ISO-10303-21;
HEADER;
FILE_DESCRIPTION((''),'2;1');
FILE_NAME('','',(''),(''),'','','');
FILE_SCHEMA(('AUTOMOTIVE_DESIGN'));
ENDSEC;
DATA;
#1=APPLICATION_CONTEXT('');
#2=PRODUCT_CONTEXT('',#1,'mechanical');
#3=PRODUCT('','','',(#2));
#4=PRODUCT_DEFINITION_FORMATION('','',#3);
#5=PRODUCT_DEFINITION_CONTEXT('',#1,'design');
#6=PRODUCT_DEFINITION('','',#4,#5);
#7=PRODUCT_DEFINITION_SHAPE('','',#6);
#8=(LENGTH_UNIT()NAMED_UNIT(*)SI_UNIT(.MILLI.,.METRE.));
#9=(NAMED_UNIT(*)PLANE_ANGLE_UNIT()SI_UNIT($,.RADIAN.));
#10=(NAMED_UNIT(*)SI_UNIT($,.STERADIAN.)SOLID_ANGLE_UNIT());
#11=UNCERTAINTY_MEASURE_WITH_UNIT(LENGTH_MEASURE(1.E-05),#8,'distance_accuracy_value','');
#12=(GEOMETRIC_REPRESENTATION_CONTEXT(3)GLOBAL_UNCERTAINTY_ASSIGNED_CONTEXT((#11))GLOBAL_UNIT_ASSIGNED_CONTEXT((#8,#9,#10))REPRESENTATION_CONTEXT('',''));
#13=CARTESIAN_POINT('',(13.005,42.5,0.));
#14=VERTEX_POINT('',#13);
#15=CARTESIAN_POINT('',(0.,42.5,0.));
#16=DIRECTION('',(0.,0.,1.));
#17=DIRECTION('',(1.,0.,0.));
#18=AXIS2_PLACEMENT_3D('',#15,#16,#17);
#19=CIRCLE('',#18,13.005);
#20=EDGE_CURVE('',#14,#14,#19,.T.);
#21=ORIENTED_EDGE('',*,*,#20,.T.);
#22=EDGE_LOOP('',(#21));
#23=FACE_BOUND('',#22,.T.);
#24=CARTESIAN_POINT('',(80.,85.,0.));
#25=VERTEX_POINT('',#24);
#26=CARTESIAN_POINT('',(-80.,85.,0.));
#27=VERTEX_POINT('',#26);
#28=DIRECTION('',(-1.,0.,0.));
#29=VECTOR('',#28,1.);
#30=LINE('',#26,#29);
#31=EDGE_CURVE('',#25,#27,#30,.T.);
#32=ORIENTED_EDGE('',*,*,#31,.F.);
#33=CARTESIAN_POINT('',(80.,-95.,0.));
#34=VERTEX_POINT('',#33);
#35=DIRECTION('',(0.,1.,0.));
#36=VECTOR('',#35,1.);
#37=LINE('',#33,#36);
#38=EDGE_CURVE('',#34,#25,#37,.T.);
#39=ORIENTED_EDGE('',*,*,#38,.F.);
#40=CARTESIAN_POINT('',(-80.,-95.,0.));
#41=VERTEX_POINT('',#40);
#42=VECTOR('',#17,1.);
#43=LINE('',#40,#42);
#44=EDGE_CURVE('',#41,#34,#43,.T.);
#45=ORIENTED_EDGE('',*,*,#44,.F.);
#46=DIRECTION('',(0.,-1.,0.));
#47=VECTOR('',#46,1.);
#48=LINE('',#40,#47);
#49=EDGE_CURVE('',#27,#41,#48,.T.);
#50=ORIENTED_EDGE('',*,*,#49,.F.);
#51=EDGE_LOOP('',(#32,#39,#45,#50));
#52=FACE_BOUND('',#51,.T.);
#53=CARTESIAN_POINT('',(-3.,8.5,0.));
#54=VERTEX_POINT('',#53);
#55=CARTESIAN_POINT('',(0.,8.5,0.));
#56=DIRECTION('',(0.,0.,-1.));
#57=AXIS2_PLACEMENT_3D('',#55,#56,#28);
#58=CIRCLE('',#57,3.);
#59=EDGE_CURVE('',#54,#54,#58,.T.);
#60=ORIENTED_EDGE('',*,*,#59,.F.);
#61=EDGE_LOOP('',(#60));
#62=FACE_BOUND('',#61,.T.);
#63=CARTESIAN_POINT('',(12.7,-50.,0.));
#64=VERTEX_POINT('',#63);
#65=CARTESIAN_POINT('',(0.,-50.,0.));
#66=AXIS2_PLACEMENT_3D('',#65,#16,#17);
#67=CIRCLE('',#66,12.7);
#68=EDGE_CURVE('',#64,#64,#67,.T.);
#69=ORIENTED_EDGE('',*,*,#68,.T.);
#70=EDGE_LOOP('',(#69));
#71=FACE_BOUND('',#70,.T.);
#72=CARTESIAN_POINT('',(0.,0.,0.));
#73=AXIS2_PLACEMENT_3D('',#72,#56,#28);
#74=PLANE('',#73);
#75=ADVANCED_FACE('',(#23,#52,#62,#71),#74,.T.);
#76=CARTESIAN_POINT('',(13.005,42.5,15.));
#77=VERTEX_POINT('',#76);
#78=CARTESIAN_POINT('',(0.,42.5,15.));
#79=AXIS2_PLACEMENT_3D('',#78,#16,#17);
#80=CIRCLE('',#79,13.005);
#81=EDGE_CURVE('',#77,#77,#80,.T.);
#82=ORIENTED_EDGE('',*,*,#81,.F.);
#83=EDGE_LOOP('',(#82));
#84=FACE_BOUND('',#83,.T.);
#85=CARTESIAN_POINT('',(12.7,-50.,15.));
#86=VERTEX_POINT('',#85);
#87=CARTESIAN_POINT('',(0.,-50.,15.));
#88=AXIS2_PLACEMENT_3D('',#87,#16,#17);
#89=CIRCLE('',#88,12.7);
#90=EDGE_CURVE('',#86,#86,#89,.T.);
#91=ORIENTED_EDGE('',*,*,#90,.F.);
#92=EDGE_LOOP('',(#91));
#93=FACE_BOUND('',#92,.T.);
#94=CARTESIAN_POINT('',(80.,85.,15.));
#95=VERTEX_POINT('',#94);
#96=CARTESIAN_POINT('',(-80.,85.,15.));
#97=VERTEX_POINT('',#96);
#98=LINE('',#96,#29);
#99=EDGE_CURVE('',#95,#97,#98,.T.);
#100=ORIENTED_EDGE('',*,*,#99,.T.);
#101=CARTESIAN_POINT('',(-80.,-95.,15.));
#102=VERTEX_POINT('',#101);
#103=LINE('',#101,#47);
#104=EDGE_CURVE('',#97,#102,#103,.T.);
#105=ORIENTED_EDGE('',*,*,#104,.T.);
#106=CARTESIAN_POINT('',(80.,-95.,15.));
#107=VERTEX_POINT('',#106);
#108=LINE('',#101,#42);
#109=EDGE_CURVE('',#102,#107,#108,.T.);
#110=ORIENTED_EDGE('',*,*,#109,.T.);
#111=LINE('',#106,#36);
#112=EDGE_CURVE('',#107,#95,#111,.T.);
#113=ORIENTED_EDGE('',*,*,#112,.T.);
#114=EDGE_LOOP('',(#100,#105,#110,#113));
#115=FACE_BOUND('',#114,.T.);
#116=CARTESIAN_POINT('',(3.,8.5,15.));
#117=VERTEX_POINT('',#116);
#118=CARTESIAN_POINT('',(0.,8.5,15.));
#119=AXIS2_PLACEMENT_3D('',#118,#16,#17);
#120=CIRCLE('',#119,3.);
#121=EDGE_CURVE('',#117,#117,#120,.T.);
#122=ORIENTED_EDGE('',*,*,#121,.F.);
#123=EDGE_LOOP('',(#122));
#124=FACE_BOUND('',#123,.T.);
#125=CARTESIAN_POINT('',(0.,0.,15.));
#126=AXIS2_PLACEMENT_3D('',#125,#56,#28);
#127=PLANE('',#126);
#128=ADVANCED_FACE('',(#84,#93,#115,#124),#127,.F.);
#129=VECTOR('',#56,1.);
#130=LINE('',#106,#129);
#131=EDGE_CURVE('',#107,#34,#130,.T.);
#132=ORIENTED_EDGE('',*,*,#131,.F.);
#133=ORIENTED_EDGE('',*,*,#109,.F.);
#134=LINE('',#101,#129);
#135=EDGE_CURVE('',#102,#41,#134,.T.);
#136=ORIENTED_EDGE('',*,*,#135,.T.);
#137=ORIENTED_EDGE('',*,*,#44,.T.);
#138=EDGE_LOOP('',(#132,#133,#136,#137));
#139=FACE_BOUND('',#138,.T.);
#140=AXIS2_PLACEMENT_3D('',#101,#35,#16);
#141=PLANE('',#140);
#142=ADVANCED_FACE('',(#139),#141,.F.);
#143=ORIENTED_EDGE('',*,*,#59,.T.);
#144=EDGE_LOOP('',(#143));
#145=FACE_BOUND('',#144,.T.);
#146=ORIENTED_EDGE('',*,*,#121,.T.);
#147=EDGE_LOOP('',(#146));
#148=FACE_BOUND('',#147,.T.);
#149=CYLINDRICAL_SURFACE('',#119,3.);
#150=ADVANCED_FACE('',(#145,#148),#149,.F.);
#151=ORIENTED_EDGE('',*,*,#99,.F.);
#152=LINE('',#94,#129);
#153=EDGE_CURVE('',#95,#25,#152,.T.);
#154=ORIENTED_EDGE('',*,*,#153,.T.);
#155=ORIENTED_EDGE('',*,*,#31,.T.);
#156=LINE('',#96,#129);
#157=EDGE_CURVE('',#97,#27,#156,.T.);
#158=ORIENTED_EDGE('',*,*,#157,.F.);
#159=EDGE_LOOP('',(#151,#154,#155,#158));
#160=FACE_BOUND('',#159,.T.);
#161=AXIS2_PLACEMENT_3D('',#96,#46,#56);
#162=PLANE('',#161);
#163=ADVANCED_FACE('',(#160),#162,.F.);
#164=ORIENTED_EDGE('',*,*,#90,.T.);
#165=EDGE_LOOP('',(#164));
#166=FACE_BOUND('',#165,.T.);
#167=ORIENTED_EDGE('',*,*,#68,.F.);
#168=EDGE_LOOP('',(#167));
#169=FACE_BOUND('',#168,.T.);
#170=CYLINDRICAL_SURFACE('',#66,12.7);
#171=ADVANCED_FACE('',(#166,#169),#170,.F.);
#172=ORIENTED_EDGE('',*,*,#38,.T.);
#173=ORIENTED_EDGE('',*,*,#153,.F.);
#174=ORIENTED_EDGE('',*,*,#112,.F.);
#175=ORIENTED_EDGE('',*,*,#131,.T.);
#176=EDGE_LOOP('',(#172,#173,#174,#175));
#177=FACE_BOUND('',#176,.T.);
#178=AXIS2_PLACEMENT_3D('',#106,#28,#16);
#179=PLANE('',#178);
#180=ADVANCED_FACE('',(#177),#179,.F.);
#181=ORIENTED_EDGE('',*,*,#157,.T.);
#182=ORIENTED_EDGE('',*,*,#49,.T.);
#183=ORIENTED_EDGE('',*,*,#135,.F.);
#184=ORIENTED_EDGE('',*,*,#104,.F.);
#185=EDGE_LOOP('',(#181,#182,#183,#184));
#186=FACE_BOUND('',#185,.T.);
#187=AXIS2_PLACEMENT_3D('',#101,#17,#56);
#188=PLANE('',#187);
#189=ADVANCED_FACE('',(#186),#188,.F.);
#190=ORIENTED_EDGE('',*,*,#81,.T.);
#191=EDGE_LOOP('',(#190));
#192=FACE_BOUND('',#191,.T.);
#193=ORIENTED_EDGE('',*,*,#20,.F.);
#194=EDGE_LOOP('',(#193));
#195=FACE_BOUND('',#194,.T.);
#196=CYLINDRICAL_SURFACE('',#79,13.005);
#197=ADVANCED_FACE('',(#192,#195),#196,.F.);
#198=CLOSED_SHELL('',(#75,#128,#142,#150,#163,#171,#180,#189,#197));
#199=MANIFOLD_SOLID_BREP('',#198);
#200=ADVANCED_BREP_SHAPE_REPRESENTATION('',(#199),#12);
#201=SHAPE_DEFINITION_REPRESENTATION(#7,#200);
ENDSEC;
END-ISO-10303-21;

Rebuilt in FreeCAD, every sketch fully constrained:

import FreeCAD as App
import Part
import Sketcher

V = App.Vector
Q = App.Units.Quantity


def add_polygon(sketch, points):
    """Adds a closed chain of lines whose ends are joined by coincident constraints."""
    first, n = sketch.GeometryCount, len(points)
    for a, b in zip(points, points[1:] + points[:1]):
        sketch.addGeometry(Part.LineSegment(App.Vector(*a, 0), App.Vector(*b, 0)), False)
    for i in range(n):
        sketch.addConstraint(Sketcher.Constraint("Coincident", first + i, 2, first + (i + 1) % n, 1))

doc = App.newDocument("Part")
body = doc.addObject("PartDesign::Body", "Body")

sketch1 = doc.addObject("Sketcher::SketchObject", "Sketch")
body.addObject(sketch1)
sketch1.AttachmentSupport = (doc.XY_Plane, [""])
sketch1.MapMode = "FlatFace"
add_polygon(sketch1, [(-80, 85), (-80, -95), (80, -95), (80, 85)])
sketch1.addConstraint(Sketcher.Constraint("Vertical", 0))
sketch1.addConstraint(Sketcher.Constraint("Horizontal", 1))
sketch1.addConstraint(Sketcher.Constraint("Vertical", 2))
sketch1.addConstraint(Sketcher.Constraint("Horizontal", 3))
sketch1.addConstraint(Sketcher.Constraint("DistanceX", 1, 1, 1, 2, Q("160 mm")))
sketch1.addConstraint(Sketcher.Constraint("DistanceY", 0, 2, 0, 1, Q("180 mm")))
sketch1.addConstraint(Sketcher.Constraint("DistanceX", 0, 2, -1, 1, Q("80 mm")))
sketch1.addConstraint(Sketcher.Constraint("DistanceY", 0, 2, -1, 1, Q("95 mm")))
pad1 = doc.addObject("PartDesign::Pad", "Pad")
body.addObject(pad1)
pad1.Profile = sketch1
pad1.Length = 15

sketch2 = doc.addObject("Sketcher::SketchObject", "Sketch001")
body.addObject(sketch2)
sketch2.AttachmentSupport = (doc.XY_Plane, [""])
sketch2.MapMode = "FlatFace"
sketch2.AttachmentOffset = App.Placement(V(0, 0, 15), App.Rotation())
sketch2.addGeometry(Part.Circle(V(0, 42, 0), V(0, 0, 1), 13), False)
sketch2.addConstraint(Sketcher.Constraint("PointOnObject", 0, 3, -2))
sketch2.addConstraint(Sketcher.Constraint("Diameter", 0, Q("26.01 mm")))
sketch2.addConstraint(Sketcher.Constraint("DistanceY", -1, 1, 0, 3, Q("42.5 mm")))
doc.recompute()
hole = doc.addObject("PartDesign::Hole", "Hole")
body.addObject(hole)
hole.Profile = sketch2
hole.ThreadType = "None"
hole.Diameter = 26.01
hole.DepthType = "ThroughAll"

sketch3 = doc.addObject("Sketcher::SketchObject", "Sketch002")
body.addObject(sketch3)
sketch3.AttachmentSupport = (doc.XY_Plane, [""])
sketch3.MapMode = "FlatFace"
sketch3.AttachmentOffset = App.Placement(V(0, 0, 15), App.Rotation())
sketch3.addGeometry(Part.Circle(V(0, 8.5, 0), V(0, 0, 1), 3), False)
sketch3.addConstraint(Sketcher.Constraint("PointOnObject", 0, 3, -2))
sketch3.addConstraint(Sketcher.Constraint("Diameter", 0, Q("6 mm")))
sketch3.addConstraint(Sketcher.Constraint("DistanceY", -1, 1, 0, 3, Q("8.5 mm")))
doc.recompute()
hole2 = doc.addObject("PartDesign::Hole", "Hole001")
body.addObject(hole2)
hole2.Profile = sketch3
hole2.ThreadType = "None"
hole2.Diameter = 6
hole2.DepthType = "Dimension"
hole2.Depth = 40
hole2.DrillPoint = "Angled"
hole2.DrillPointAngle = 118

sketch4 = doc.addObject("Sketcher::SketchObject", "Sketch003")
body.addObject(sketch4)
sketch4.AttachmentSupport = (doc.XY_Plane, [""])
sketch4.MapMode = "FlatFace"
sketch4.AttachmentOffset = App.Placement(V(0, 0, 15), App.Rotation())
sketch4.addGeometry(Part.Circle(V(0, -50, 0), V(0, 0, 1), 13), False)
sketch4.addConstraint(Sketcher.Constraint("PointOnObject", 0, 3, -2))
sketch4.addConstraint(Sketcher.Constraint("Diameter", 0, Q("25.4 mm")))
sketch4.addConstraint(Sketcher.Constraint("DistanceY", 0, 3, -1, 1, Q("50 mm")))
pocket1 = doc.addObject("PartDesign::Pocket", "Pocket")
body.addObject(pocket1)
pocket1.Profile = sketch4
pocket1.Type = "ThroughAll"

doc.recompute()
